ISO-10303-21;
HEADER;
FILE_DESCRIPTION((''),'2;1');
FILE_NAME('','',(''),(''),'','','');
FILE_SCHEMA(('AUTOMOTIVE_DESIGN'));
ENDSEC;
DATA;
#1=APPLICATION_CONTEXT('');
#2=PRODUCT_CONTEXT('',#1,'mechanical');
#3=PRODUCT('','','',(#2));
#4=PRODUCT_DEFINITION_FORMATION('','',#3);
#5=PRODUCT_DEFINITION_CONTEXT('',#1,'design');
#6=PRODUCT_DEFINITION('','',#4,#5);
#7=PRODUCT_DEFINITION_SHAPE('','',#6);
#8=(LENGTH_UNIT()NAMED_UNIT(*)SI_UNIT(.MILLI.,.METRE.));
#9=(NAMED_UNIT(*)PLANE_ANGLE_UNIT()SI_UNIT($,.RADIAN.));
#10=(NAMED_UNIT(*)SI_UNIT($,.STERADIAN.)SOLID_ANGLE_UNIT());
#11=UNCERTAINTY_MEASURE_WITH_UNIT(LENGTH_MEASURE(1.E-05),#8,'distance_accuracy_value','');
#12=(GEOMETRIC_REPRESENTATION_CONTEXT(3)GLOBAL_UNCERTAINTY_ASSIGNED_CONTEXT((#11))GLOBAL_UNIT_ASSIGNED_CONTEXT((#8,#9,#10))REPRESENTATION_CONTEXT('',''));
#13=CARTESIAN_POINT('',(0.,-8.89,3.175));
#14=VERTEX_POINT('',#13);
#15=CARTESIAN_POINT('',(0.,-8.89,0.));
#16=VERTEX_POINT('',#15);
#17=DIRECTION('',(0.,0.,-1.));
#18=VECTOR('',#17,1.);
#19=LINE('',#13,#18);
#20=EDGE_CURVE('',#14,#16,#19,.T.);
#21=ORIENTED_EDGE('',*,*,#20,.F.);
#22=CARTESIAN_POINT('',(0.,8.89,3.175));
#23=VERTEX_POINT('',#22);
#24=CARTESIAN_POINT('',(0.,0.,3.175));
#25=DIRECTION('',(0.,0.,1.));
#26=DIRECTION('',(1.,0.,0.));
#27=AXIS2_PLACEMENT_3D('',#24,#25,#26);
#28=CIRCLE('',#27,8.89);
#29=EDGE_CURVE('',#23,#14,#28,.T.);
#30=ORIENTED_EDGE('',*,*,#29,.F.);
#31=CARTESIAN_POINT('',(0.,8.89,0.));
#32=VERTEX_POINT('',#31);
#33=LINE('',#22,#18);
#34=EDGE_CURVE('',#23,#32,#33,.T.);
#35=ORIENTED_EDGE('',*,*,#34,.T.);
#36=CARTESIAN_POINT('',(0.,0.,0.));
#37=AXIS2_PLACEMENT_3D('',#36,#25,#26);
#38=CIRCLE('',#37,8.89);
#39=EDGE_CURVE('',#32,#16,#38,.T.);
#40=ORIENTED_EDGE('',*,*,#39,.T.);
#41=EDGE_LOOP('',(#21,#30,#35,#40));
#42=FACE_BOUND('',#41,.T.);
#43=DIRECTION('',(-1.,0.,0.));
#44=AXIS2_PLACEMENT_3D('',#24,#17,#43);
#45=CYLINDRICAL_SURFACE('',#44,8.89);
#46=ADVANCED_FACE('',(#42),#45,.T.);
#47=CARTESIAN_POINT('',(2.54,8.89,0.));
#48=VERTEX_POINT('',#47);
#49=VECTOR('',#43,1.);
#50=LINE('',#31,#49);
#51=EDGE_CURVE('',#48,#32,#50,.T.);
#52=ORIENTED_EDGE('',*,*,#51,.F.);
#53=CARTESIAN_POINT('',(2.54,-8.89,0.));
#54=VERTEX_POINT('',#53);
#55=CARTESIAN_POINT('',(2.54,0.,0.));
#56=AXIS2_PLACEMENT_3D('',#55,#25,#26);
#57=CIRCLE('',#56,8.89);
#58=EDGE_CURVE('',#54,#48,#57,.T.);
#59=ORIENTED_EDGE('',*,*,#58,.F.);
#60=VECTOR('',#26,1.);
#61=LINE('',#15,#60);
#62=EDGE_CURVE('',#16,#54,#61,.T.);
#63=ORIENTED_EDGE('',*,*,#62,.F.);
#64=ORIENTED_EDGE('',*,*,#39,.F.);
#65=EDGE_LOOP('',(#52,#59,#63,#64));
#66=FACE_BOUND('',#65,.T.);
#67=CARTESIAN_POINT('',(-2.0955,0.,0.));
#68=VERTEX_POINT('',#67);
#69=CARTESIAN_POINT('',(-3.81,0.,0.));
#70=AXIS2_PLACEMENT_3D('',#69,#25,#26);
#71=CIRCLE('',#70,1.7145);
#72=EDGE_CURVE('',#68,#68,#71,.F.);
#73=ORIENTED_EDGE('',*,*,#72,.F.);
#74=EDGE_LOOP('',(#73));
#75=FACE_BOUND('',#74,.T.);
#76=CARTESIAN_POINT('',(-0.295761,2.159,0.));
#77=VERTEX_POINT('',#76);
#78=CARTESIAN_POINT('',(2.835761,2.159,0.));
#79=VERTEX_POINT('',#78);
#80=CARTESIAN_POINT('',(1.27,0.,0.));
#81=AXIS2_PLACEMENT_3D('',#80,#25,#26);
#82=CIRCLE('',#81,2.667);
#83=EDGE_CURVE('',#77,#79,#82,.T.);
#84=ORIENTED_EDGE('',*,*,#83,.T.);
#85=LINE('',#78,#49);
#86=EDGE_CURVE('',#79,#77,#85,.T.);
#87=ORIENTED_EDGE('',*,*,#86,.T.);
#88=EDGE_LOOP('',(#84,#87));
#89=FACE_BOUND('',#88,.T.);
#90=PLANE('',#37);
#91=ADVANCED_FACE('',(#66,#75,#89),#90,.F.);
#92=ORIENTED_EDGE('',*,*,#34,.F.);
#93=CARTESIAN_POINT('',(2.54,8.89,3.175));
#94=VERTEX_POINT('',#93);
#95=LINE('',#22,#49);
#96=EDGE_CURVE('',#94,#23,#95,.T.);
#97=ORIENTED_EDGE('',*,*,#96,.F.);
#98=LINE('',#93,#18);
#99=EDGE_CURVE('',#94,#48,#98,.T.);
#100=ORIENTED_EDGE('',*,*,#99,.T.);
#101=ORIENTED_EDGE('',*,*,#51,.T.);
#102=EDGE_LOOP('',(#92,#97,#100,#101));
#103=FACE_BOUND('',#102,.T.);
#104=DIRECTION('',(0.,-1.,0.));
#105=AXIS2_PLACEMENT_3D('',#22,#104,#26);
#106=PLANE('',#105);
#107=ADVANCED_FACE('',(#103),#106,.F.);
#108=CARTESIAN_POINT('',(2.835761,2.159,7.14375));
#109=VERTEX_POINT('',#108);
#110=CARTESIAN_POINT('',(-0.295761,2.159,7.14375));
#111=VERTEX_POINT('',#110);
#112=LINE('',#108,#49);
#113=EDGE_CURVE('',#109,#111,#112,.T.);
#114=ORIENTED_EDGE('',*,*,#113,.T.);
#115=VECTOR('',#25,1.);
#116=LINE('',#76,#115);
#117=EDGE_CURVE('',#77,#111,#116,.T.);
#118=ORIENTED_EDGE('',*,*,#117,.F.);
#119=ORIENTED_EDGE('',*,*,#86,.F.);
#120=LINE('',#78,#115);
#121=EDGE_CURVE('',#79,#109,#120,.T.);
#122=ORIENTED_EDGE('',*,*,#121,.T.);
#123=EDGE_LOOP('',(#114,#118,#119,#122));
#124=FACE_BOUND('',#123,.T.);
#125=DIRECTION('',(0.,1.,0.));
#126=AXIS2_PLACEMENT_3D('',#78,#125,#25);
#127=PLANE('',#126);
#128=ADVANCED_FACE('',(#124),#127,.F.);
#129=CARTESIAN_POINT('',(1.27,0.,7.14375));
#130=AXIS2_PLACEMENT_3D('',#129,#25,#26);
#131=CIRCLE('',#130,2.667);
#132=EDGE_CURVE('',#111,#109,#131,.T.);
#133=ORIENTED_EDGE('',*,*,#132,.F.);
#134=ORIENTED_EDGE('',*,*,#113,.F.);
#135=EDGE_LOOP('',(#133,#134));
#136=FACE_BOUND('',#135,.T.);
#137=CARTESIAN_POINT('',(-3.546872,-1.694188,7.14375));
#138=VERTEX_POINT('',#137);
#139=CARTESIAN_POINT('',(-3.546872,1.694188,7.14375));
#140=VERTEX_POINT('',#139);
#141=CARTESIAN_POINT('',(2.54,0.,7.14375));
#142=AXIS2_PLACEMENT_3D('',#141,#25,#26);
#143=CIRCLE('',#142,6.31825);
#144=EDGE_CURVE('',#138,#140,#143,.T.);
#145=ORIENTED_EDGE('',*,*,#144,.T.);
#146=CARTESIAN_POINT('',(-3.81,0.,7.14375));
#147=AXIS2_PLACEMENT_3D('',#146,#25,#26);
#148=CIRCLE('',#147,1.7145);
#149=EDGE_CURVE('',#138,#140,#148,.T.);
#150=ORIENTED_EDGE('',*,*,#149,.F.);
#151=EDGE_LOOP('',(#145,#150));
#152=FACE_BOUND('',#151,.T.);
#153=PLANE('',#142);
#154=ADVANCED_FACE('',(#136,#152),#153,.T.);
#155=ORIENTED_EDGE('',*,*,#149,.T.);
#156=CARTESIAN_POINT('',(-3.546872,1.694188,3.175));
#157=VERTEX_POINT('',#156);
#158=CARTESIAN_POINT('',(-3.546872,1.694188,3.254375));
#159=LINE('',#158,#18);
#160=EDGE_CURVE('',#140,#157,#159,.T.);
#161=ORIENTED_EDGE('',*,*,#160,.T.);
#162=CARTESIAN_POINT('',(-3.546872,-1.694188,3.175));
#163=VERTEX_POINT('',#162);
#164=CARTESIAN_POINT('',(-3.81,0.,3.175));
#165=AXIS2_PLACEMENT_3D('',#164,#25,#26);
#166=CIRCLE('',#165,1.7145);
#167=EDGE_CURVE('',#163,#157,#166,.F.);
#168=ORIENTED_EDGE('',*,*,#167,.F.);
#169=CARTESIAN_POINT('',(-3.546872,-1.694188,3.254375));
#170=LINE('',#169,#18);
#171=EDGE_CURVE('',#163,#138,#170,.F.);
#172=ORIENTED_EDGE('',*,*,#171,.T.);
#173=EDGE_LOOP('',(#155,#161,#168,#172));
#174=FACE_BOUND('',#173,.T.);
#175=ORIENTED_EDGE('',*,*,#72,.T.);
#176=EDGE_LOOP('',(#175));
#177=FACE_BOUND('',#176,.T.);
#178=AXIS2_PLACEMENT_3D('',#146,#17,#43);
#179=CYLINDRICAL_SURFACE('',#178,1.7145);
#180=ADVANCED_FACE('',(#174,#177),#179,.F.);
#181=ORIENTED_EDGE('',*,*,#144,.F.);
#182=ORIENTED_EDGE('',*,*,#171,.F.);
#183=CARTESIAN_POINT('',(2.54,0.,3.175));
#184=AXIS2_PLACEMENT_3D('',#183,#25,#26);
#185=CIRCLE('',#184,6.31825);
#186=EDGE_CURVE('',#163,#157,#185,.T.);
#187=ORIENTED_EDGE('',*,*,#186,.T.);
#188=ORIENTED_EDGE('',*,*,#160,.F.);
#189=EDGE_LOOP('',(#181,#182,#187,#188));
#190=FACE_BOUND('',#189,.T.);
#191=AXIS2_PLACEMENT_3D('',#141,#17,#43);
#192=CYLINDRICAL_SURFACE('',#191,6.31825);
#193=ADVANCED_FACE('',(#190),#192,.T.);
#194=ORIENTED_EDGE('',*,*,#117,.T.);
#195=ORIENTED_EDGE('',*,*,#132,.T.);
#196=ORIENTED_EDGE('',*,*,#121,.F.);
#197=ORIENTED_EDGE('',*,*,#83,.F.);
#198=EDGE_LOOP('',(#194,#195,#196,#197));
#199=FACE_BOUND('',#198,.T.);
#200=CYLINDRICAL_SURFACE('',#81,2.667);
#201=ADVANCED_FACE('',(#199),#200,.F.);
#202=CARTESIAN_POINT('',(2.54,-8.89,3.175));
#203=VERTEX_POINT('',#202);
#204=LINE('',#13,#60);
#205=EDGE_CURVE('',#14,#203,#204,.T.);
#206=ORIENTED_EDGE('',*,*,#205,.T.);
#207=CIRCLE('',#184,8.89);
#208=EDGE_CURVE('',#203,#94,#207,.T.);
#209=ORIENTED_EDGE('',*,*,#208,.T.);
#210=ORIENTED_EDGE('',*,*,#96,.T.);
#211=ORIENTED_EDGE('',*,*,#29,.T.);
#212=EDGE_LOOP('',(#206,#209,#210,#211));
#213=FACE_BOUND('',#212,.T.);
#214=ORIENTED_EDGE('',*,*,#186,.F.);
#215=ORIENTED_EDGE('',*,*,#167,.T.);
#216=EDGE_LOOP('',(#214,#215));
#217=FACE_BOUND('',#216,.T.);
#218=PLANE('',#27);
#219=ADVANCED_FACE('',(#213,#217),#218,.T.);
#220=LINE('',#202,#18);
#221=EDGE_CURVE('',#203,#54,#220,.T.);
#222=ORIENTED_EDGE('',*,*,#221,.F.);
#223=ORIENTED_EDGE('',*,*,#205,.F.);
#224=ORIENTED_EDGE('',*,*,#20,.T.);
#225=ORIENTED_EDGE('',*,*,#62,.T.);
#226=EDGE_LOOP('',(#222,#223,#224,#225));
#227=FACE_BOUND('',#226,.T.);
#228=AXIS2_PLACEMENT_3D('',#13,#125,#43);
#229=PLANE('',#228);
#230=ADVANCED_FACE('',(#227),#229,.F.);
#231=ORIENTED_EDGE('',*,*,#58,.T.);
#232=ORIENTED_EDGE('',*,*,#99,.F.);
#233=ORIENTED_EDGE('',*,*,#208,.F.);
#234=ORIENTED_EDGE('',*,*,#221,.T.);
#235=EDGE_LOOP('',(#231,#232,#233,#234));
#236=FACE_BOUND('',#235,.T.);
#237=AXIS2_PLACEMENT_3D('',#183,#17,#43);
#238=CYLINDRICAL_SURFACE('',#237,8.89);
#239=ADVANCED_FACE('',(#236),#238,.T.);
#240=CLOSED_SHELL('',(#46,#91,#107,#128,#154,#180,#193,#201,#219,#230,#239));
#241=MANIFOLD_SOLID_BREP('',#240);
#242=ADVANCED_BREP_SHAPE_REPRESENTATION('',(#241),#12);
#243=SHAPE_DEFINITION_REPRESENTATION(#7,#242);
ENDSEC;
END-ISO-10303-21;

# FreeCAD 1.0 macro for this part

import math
import FreeCAD as App
import Part
import Sketcher
Q = App.Units.Quantity

doc = App.newDocument("Part")
body = doc.addObject("PartDesign::Body", "Body")

# Sketch on XY plane
sketch1 = body.newObject("Sketcher::SketchObject", "Sketch")
sketch1.AttachmentSupport = (doc.getObject("XY_Plane"), [""])
sketch1.MapMode = "FlatFace"
sketch1.addGeometry([
    Part.LineSegment(App.Vector(2.5, 8.9, 0), App.Vector(0, 8.9, 0)),
    Part.ArcOfCircle(Part.Circle(App.Vector(0, 0, 0), App.Vector(0, 0, 1), 8.9), math.radians(90), math.radians(270)),
    Part.LineSegment(App.Vector(0, -8.9, 0), App.Vector(2.5, -8.9, 0)),
    Part.ArcOfCircle(Part.Circle(App.Vector(2.5, 0, 0), App.Vector(0, 0, 1), 8.9), math.radians(-90), math.radians(90)),
], False)
sketch1.addConstraint([
    Sketcher.Constraint("Tangent", 0, 2, 1, 1),
    Sketcher.Constraint("Tangent", 1, 2, 2, 1),
    Sketcher.Constraint("Tangent", 2, 2, 3, 1),
    Sketcher.Constraint("Tangent", 3, 2, 0, 1),
    Sketcher.Constraint("Horizontal", 0),
    Sketcher.Constraint("Horizontal", 2),
    Sketcher.Constraint("Coincident", 1, 3, -1, 1),
    Sketcher.Constraint("Radius", 1, Q("0.35 in")),
    Sketcher.Constraint("DistanceX", 0, 2, 0, 1, Q("0.1 in")),
])
pad1 = body.newObject("PartDesign::Pad", "Pad")
pad1.Profile = sketch1
pad1.Length = Q("0.125 in")

# Sketch on XY plane
sketch2 = body.newObject("Sketcher::SketchObject", "Sketch001")
sketch2.AttachmentSupport = (doc.getObject("XY_Plane"), [""])
sketch2.MapMode = "FlatFace"
sketch2.AttachmentOffset = App.Placement(App.Vector(0, 0, 0.125 * 25.4), App.Rotation())
sketch2.addGeometry(Part.Circle(App.Vector(3, 0, 0), App.Vector(0, 0, 1), 6), False)
sketch2.addConstraint([
    Sketcher.Constraint("PointOnObject", 0, 3, -1),
    Sketcher.Constraint("Diameter", 0, Q("0.4975 in")),
    Sketcher.Constraint("DistanceX", -1, 1, 0, 3, Q("0.1 in")),
])
pad2 = body.newObject("PartDesign::Pad", "Pad001")
pad2.Profile = sketch2
pad2.Length = Q("0.15625 in")

# Sketch on XY plane
sketch3 = body.newObject("Sketcher::SketchObject", "Sketch002")
sketch3.AttachmentSupport = (doc.getObject("XY_Plane"), [""])
sketch3.MapMode = "FlatFace"
sketch3.AttachmentOffset = App.Placement(App.Vector(0, 0, 0.125 * 25.4), App.Rotation())
sketch3.addGeometry([
    Part.Circle(App.Vector(-3.8, 0, 0), App.Vector(0, 0, 1), 0.9),
    Part.LineSegment(App.Vector(2.8, 2.2, 0), App.Vector(-0.3, 2.2, 0)),
    Part.ArcOfCircle(Part.Circle(App.Vector(1.3, 0, 0), App.Vector(0, 0, 1), 2.7), math.radians(126), math.radians(414)),
], False)
sketch3.addConstraint([
    Sketcher.Constraint("Coincident", 1, 1, 2, 2),
    Sketcher.Constraint("Coincident", 2, 1, 1, 2),
    Sketcher.Constraint("Horizontal", 1),
    Sketcher.Constraint("PointOnObject", 0, 3, -1),
    Sketcher.Constraint("PointOnObject", 2, 3, -1),
    Sketcher.Constraint("Radius", 2, Q("0.105 in")),
    Sketcher.Constraint("DistanceX", 0, 3, 2, 3, Q("0.2 in")),
    Sketcher.Constraint("Diameter", 0, Q("1.8 mm")),
    Sketcher.Constraint("DistanceX", 0, 3, -1, 1, Q("0.15 in")),
    Sketcher.Constraint("DistanceY", -1, 1, 1, 1, Q("0.085 in")),
])
pocket1 = body.newObject("PartDesign::Pocket", "Pocket")
pocket1.Profile = sketch3
pocket1.Type = "ThroughAll"
pocket1.Midplane = True

# Sketch on XY plane
sketch4 = body.newObject("Sketcher::SketchObject", "Sketch003")
sketch4.AttachmentSupport = (doc.getObject("XY_Plane"), [""])
sketch4.MapMode = "FlatFace"
sketch4.AttachmentOffset = App.Placement(App.Vector(0, 0, 0.125 * 25.4), App.Rotation())
sketch4.addGeometry(Part.Circle(App.Vector(-3.8, 0, 0), App.Vector(0, 0, 1), 1.7), False)
sketch4.addConstraint([
    Sketcher.Constraint("PointOnObject", 0, 3, -1),
    Sketcher.Constraint("Diameter", 0, Q("0.135 in")),
    Sketcher.Constraint("DistanceX", 0, 3, -1, 1, Q("0.15 in")),
])
pocket2 = body.newObject("PartDesign::Pocket", "Pocket001")
pocket2.Profile = sketch4
pocket2.Type = "ThroughAll"
pocket2.Midplane = True

doc.recompute()
